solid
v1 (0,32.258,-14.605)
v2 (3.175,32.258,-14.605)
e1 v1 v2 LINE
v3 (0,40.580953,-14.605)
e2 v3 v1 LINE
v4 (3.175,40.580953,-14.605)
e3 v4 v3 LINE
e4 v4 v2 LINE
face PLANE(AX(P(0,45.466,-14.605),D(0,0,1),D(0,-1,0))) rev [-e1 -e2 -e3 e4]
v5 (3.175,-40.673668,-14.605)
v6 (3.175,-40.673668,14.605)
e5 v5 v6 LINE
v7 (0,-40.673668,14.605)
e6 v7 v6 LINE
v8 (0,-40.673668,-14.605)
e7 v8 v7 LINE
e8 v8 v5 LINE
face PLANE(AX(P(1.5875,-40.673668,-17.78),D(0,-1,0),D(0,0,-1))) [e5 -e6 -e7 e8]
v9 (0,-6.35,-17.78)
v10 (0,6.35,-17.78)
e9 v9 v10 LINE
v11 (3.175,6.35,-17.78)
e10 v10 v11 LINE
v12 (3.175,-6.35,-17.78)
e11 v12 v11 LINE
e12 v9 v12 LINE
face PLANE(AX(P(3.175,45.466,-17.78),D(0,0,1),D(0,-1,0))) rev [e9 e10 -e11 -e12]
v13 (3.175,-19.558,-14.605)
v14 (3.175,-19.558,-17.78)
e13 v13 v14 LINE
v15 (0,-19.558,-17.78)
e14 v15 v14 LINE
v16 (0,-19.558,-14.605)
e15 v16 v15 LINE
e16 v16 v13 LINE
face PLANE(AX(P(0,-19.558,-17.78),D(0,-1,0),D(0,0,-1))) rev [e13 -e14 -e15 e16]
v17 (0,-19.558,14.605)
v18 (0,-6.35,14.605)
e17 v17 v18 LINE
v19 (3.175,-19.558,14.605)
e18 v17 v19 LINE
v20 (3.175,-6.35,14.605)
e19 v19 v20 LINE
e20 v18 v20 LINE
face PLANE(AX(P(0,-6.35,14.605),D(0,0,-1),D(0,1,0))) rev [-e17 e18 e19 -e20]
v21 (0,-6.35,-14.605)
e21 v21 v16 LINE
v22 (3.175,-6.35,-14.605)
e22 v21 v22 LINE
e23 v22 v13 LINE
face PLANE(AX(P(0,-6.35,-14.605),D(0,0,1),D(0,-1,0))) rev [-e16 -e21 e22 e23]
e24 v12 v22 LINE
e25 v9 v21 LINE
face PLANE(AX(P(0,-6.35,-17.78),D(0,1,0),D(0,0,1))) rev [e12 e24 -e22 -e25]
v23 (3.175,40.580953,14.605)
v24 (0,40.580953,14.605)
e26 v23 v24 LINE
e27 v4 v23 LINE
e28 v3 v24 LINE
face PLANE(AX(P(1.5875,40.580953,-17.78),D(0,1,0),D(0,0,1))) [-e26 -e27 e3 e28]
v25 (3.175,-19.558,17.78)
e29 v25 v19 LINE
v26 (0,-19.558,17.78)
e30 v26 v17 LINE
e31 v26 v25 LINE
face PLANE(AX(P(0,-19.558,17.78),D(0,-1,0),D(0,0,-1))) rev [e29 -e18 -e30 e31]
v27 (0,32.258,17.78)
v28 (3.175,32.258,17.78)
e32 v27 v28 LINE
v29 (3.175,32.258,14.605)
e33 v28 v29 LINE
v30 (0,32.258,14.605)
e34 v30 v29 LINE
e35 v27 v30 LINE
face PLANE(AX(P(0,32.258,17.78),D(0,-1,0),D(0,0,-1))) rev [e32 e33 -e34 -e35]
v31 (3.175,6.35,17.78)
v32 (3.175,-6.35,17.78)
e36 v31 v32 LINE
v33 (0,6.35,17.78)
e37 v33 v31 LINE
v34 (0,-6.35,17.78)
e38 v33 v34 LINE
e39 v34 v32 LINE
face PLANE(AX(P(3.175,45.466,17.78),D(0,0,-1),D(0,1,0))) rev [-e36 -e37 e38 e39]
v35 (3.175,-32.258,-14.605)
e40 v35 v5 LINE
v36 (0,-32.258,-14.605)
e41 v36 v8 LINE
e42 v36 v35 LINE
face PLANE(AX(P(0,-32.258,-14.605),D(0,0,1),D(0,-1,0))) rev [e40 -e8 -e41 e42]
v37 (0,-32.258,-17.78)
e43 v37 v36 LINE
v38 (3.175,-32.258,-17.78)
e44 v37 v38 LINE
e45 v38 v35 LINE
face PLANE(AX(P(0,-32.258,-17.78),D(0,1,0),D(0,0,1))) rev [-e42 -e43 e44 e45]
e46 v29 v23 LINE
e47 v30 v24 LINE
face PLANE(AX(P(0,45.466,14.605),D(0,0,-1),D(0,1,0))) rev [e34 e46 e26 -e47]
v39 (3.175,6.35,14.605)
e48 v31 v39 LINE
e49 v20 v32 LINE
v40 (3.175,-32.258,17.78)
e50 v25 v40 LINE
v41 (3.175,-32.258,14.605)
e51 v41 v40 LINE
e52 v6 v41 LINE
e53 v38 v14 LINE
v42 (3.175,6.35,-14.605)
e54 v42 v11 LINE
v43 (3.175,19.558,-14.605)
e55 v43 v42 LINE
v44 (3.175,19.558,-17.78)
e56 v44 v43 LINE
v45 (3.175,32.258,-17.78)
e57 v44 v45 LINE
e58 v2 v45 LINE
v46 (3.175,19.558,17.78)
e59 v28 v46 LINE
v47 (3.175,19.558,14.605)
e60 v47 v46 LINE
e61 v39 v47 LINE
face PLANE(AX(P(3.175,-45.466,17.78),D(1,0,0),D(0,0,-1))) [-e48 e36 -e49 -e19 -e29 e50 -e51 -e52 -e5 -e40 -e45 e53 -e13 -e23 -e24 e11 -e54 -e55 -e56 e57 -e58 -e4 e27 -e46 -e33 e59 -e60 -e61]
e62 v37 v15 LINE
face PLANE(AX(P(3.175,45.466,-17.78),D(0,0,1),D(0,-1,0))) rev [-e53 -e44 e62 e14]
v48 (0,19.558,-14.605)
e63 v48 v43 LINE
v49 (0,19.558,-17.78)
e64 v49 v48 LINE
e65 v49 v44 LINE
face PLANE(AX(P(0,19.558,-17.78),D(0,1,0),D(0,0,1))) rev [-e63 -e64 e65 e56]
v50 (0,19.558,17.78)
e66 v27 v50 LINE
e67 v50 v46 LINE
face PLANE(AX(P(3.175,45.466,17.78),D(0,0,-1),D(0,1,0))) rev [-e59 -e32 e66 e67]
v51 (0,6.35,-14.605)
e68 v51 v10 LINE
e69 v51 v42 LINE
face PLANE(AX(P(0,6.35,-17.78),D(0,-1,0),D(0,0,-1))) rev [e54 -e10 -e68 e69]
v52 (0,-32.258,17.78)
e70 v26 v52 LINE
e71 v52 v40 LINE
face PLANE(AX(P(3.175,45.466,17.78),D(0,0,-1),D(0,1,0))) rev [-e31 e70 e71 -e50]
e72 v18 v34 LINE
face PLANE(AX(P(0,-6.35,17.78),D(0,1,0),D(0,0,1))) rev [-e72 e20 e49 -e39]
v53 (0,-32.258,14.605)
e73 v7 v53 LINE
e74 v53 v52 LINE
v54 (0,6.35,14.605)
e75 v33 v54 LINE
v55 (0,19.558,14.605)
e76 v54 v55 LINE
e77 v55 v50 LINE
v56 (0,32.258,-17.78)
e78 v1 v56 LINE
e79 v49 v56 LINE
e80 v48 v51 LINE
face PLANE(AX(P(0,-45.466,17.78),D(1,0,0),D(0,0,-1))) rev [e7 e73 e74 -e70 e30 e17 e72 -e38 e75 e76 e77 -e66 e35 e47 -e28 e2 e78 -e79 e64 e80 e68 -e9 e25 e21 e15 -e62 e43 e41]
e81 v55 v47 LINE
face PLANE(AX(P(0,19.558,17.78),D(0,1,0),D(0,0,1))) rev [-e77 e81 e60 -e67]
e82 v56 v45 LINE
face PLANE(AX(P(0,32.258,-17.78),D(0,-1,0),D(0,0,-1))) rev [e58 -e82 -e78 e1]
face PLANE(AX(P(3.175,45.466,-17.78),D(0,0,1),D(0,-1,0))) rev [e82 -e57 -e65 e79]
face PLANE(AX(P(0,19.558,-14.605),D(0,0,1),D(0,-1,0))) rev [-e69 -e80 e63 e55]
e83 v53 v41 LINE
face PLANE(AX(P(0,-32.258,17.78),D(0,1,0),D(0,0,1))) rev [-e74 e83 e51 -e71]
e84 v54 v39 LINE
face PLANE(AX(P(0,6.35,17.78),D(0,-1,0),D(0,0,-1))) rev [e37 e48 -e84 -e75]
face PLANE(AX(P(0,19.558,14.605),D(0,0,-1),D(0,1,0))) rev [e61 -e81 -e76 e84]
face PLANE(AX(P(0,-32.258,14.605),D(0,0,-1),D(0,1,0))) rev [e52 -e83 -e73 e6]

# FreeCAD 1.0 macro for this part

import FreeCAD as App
import Part
import Sketcher
Q = App.Units.Quantity


def add_polygon(sketch, points):
    """Adds a closed chain of lines whose ends are joined by coincident constraints."""
    first, n = sketch.GeometryCount, len(points)
    for a, b in zip(points, points[1:] + points[:1]):
        sketch.addGeometry(Part.LineSegment(App.Vector(*a, 0), App.Vector(*b, 0)), False)
    for i in range(n):
        sketch.addConstraint(Sketcher.Constraint("Coincident", first + i, 2, first + (i + 1) % n, 1))

doc = App.newDocument("Part")
body = doc.addObject("PartDesign::Body", "Body")

sketch1 = doc.addObject("Sketcher::SketchObject", "Sketch")
body.addObject(sketch1)
sketch1.AttachmentSupport = (doc.YZ_Plane, [""])
sketch1.MapMode = "FlatFace"
add_polygon(sketch1, [(45, 18), (-45, 18), (-45, -18), (45, -18)])
sketch1.addConstraint([
    Sketcher.Constraint("Horizontal", 0),
    Sketcher.Constraint("Vertical", 1),
    Sketcher.Constraint("Horizontal", 2),
    Sketcher.Constraint("Vertical", 3),
    Sketcher.Constraint("Symmetric", 0, 2, 2, 2, -1, 1),
    Sketcher.Constraint("DistanceY", 1, 2, 1, 1, Q("1.4 in")),
    Sketcher.Constraint("DistanceX", 0, 2, 0, 1, Q("3.58 in")),
])
pad1 = doc.addObject("PartDesign::Pad", "Pad")
body.addObject(pad1)
pad1.Profile = sketch1
pad1.Length = Q("0.125 in")

sketch2 = doc.addObject("Sketcher::SketchObject", "Sketch001")
body.addObject(sketch2)
sketch2.AttachmentSupport = (doc.YZ_Plane, [""])
sketch2.MapMode = "FlatFace"
sketch2.AttachmentOffset = App.Placement(App.Vector(0, 0, 0.125 * 25.4), App.Rotation())
add_polygon(sketch2, [(45.5, 17.8), (32.3, 17.8), (32.3, 14.6), (45.5, 14.6)])
add_polygon(sketch2, [(19.6, 17.8), (6.3, 17.8), (6.3, 14.6), (19.6, 14.6)])
add_polygon(sketch2, [(-6.3, 17.8), (-19.6, 17.8), (-19.6, 14.6), (-6.3, 14.6)])
add_polygon(sketch2, [(-32.3, 17.8), (-45.5, 17.8), (-45.5, 14.6), (-32.3, 14.6)])
add_polygon(sketch2, [(-58.2, 17.8), (-71.4, 17.8), (-71.4, 14.6), (-58.2, 14.6)])
add_polygon(sketch2, [(-32.3, -14.6), (-45.5, -14.6), (-45.5, -17.8), (-32.3, -17.8)])
add_polygon(sketch2, [(-6.3, -14.6), (-19.6, -14.6), (-19.6, -17.8), (-6.3, -17.8)])
add_polygon(sketch2, [(19.6, -14.6), (6.3, -14.6), (6.3, -17.8), (19.6, -17.8)])
add_polygon(sketch2, [(45.5, -14.6), (32.3, -14.6), (32.3, -17.8), (45.5, -17.8)])
sketch2.addConstraint([
    Sketcher.Constraint("Horizontal", 0),
    Sketcher.Constraint("Vertical", 1),
    Sketcher.Constraint("Horizontal", 2),
    Sketcher.Constraint("Vertical", 3),
    Sketcher.Constraint("Horizontal", 4),
    Sketcher.Constraint("Vertical", 5),
    Sketcher.Constraint("Horizontal", 6),
    Sketcher.Constraint("Vertical", 7),
    Sketcher.Constraint("Horizontal", 8),
    Sketcher.Constraint("Vertical", 9),
    Sketcher.Constraint("Horizontal", 10),
    Sketcher.Constraint("Vertical", 11),
    Sketcher.Constraint("Horizontal", 12),
    Sketcher.Constraint("Vertical", 13),
    Sketcher.Constraint("Horizontal", 14),
    Sketcher.Constraint("Vertical", 15),
    Sketcher.Constraint("Horizontal", 16),
    Sketcher.Constraint("Vertical", 17),
    Sketcher.Constraint("Horizontal", 18),
    Sketcher.Constraint("Vertical", 19),
    Sketcher.Constraint("Horizontal", 20),
    Sketcher.Constraint("Vertical", 21),
    Sketcher.Constraint("Horizontal", 22),
    Sketcher.Constraint("Vertical", 23),
    Sketcher.Constraint("Horizontal", 24),
    Sketcher.Constraint("Vertical", 25),
    Sketcher.Constraint("Horizontal", 26),
    Sketcher.Constraint("Vertical", 27),
    Sketcher.Constraint("Horizontal", 28),
    Sketcher.Constraint("Vertical", 29),
    Sketcher.Constraint("Horizontal", 30),
    Sketcher.Constraint("Vertical", 31),
    Sketcher.Constraint("Horizontal", 32),
    Sketcher.Constraint("Vertical", 33),
    Sketcher.Constraint("Horizontal", 34),
    Sketcher.Constraint("Vertical", 35),
    Sketcher.Constraint("Symmetric", 2, 2, 20, 2, -1, 1),
    Sketcher.Constraint("Symmetric", 0, 2, 22, 2, -1, 1),
    Sketcher.Constraint("Symmetric", 6, 2, 24, 2, -1, 1),
    Sketcher.Constraint("Symmetric", 4, 2, 26, 2, -1, 1),
    Sketcher.Constraint("Symmetric", 10, 2, 28, 2, -1, 1),
    Sketcher.Constraint("Symmetric", 8, 2, 30, 2, -1, 1),
    Sketcher.Constraint("Symmetric", 14, 2, 32, 2, -1, 1),
    Sketcher.Constraint("Symmetric", 12, 2, 34, 2, -1, 1),
    Sketcher.Constraint("Symmetric", 7, 2, 8, 2, -2),
    Sketcher.Constraint("Symmetric", 5, 2, 10, 2, -2),
    Sketcher.Constraint("Symmetric", 3, 2, 12, 2, -2),
    Sketcher.Constraint("Symmetric", 1, 2, 14, 2, -2),
    Sketcher.Constraint("Horizontal", 3, 2, 4, 2),
    Sketcher.Constraint("Horizontal", 2, 2, 5, 2),
    Sketcher.Constraint("Horizontal", 15, 2, 16, 2),
    Sketcher.Constraint("Horizontal", 14, 2, 17, 2),
    Sketcher.Constraint("Equal", 2, 4),
    Sketcher.Constraint("Equal", 14, 16),
    Sketcher.Constraint("DistanceX", 0, 2, 0, 1, Q("0.52 in")),
    Sketcher.Constraint("DistanceY", -1, 1, 0, 2, Q("0.7 in")),
    Sketcher.Constraint("DistanceX", 6, 2, 1, 2, Q("0.5 in")),
    Sketcher.Constraint("DistanceX", 10, 2, 5, 2, Q("0.5 in")),
    Sketcher.Constraint("DistanceX", 18, 2, 13, 2, Q("0.5 in")),
    Sketcher.Constraint("DistanceY", 1, 2, 1, 1, Q("0.125 in")),
])
pocket1 = doc.addObject("PartDesign::Pocket", "Pocket")
body.addObject(pocket1)
pocket1.Profile = sketch2
pocket1.Type = "ThroughAll"

sketch3 = doc.addObject("Sketcher::SketchObject", "Sketch002")
body.addObject(sketch3)
sketch3.AttachmentSupport = (doc.XY_Plane, [""])
sketch3.MapMode = "FlatFace"
sketch3.AttachmentOffset = App.Placement(App.Vector(0, 0, 0.575 * 25.4), App.Rotation())
add_polygon(sketch3, [(0, 45.5), (0, 40.6), (3.2, 40.6), (3.2, 45.5)])
add_polygon(sketch3, [(0, -40.7), (0, -45.5), (3.2, -45.5), (3.2, -40.7)])
sketch3.addConstraint([
    Sketcher.Constraint("Vertical", 0),
    Sketcher.Constraint("Horizontal", 1),
    Sketcher.Constraint("Vertical", 2),
    Sketcher.Constraint("Horizontal", 3),
    Sketcher.Constraint("Vertical", 4),
    Sketcher.Constraint("Horizontal", 5),
    Sketcher.Constraint("Vertical", 6),
    Sketcher.Constraint("Horizontal", 7),
    Sketcher.Constraint("Symmetric", 3, 2, 4, 2, -1, 1),
    Sketcher.Constraint("PointOnObject", 0, 2, -2),
    Sketcher.Constraint("Vertical", 2, 2, 5, 2),
    Sketcher.Constraint("DistanceX", 1, 1, 1, 2, Q("0.125 in")),
    Sketcher.Constraint("DistanceY", -1, 1, 2, 2, Q("1.79 in")),
    Sketcher.Constraint("DistanceY", 4, 2, 4, 1, 4.792332),
    Sketcher.Constraint("DistanceY", 0, 2, 0, 1, 4.885047),
])
pocket2 = doc.addObject("PartDesign::Pocket", "Pocket001")
body.addObject(pocket2)
pocket2.Profile = sketch3
pocket2.Type = "ThroughAll"

doc.recompute()
